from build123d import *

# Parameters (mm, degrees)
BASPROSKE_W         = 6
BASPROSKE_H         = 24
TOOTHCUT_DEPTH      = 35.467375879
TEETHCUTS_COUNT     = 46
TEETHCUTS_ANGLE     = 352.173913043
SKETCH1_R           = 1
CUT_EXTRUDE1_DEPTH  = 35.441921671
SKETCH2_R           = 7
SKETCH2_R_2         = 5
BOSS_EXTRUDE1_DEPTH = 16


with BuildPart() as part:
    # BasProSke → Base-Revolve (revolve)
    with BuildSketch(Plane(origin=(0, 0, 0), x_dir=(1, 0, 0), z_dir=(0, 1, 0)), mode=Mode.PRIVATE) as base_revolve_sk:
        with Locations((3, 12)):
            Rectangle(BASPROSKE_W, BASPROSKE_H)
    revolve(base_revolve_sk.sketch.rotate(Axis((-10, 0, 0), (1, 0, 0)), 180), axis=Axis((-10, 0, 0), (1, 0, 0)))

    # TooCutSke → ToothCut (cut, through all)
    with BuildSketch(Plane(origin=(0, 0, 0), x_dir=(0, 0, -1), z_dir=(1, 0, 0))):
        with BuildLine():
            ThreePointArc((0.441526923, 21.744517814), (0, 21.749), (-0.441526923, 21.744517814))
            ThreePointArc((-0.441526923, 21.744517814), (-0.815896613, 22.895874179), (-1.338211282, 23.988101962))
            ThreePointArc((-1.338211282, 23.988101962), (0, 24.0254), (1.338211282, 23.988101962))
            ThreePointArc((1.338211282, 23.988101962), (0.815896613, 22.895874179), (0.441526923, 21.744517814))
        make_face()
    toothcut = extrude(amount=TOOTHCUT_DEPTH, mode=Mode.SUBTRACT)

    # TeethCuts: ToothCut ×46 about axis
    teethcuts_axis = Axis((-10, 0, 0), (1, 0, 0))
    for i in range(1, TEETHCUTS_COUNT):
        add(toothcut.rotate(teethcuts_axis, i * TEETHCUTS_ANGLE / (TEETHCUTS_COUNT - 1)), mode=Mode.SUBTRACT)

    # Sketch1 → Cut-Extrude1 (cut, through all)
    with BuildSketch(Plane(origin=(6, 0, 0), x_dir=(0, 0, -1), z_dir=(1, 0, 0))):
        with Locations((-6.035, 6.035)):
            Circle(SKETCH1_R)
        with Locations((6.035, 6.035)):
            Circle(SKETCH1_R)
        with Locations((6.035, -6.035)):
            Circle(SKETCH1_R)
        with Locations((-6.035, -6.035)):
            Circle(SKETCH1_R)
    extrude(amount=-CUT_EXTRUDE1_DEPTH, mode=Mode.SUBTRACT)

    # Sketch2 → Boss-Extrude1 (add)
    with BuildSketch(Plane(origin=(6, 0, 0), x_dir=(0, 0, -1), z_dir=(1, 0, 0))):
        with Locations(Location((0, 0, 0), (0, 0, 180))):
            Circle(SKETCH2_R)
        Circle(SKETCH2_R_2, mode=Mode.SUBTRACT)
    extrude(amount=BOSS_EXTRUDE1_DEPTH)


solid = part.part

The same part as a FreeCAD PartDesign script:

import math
import FreeCAD as App
import Part
import Sketcher

V = App.Vector
Q = App.Units.Quantity

doc = App.newDocument("Part")
params = doc.addObject("Spreadsheet::Sheet", "Params")
for row, (alias, value) in enumerate([
    ("sketch1_width", "6 mm"),
    ("sketch1_height", "24 mm"),
    ("revolution_angle", "360 deg"),
    ("sketch2_radius", "9.2 mm"),
    ("sketch3_diameter", "2 mm"),
    ("sketch4_diameter", "14 mm"),
    ("sketch4_diameter2", "10 mm"),
    ("pad1_length", "16 mm"),
], start=1):
    params.set(f"A{row}", alias)
    params.set(f"B{row}", "=" + value)
    params.setAlias(f"B{row}", alias)

body = doc.addObject("PartDesign::Body", "Body")

sketch1 = doc.addObject("Sketcher::SketchObject", "Sketch")
body.addObject(sketch1)
sketch1.AttachmentSupport = (doc.XZ_Plane, [""])
sketch1.MapMode = "FlatFace"
sketch1.addGeometry([
    Part.LineSegment(V(0, -24, 0), V(0, 0, 0)),
    Part.LineSegment(V(0, 0, 0), V(6, 0, 0)),
    Part.LineSegment(V(6, 0, 0), V(6, -24, 0)),
    Part.LineSegment(V(6, -24, 0), V(0, -24, 0)),
], False)
sketch1.addConstraint([
    Sketcher.Constraint("Coincident", 0, 2, 1, 1),
    Sketcher.Constraint("Coincident", 1, 2, 2, 1),
    Sketcher.Constraint("Coincident", 2, 2, 3, 1),
    Sketcher.Constraint("Coincident", 3, 2, 0, 1),
    Sketcher.Constraint("Vertical", 0),
    Sketcher.Constraint("Horizontal", 1),
    Sketcher.Constraint("Vertical", 2),
    Sketcher.Constraint("Horizontal", 3),
    Sketcher.Constraint("Coincident", 0, 2, -1, 1),
    Sketcher.Constraint("DistanceX", 1, 1, 1, 2, Q("6 mm")),
    Sketcher.Constraint("DistanceY", 0, 1, 0, 2, Q("24 mm")),
])
sketch1.setExpression("Constraints[9]", "Params.sketch1_width")
sketch1.setExpression("Constraints[10]", "Params.sketch1_height")
revolution = doc.addObject("PartDesign::Revolution", "Revolution")
body.addObject(revolution)
revolution.Profile = sketch1
revolution.ReferenceAxis = (sketch1, ["H_Axis"])
revolution.setExpression("Angle", "Params.revolution_angle")

sketch2 = doc.addObject("Sketcher::SketchObject", "Sketch001")
body.addObject(sketch2)
sketch2.AttachmentSupport = (doc.YZ_Plane, [""])
sketch2.MapMode = "FlatFace"
sketch2.addGeometry([
    Part.ArcOfCircle(Part.Circle(V(0, 0, 0), V(0, 0, 1), 21.7), math.radians(-1.16), math.radians(1.16)),
    Part.ArcOfCircle(Part.Circle(V(19.5, -9.4, 0), V(0, 0, 1), 9.2), math.radians(60.67), math.radians(75.76)),
    Part.ArcOfCircle(Part.Circle(V(0, 0, 0), V(0, 0, 1), 24), math.radians(-3.19), math.radians(3.19)),
    Part.ArcOfCircle(Part.Circle(V(19.5, 9.4, 0), V(0, 0, 1), 9.2), math.radians(-75.76), math.radians(-60.67)),
], False)
sketch2.addConstraint([
    Sketcher.Constraint("Coincident", 0, 1, 1, 2),
    Sketcher.Constraint("Coincident", 1, 1, 2, 1),
    Sketcher.Constraint("Coincident", 2, 2, 3, 2),
    Sketcher.Constraint("Coincident", 3, 1, 0, 2),
    Sketcher.Constraint("Coincident", 0, 3, -1, 1),
    Sketcher.Constraint("Coincident", 2, 3, -1, 1),
    Sketcher.Constraint("Equal", 1, 3),
    Sketcher.Constraint("Symmetric", 1, 3, 3, 3, -1),
    Sketcher.Constraint("Radius", 1, Q("9.2 mm")),
    Sketcher.Constraint("Radius", 0, Q("21.748999 mm")),
    Sketcher.Constraint("Radius", 2, Q("24.0254 mm")),
    Sketcher.Constraint("DistanceX", -1, 1, 1, 1, Q("23.988102 mm")),
    Sketcher.Constraint("DistanceX", -1, 1, 1, 3, Q("19.48154 mm")),
])
sketch2.setExpression("Constraints[8]", "Params.sketch2_radius")
pocket1 = doc.addObject("PartDesign::Pocket", "Pocket")
body.addObject(pocket1)
pocket1.Profile = sketch2
pocket1.Type = "ThroughAll"
pocket1.Reversed = True
doc.recompute()

polarpattern = doc.addObject("PartDesign::PolarPattern", "PolarPattern")
body.addObject(polarpattern)
polarpattern.Originals = [pocket1]
polarpattern.Axis = (doc.X_Axis, [""])
polarpattern.Angle = 360
polarpattern.Occurrences = 46
body.Tip = polarpattern

sketch3 = doc.addObject("Sketcher::SketchObject", "Sketch002")
body.addObject(sketch3)
sketch3.AttachmentSupport = (doc.YZ_Plane, [""])
sketch3.MapMode = "FlatFace"
sketch3.AttachmentOffset = App.Placement(V(0, 0, 6), App.Rotation())
sketch3.addGeometry([
    Part.Circle(V(6, 6, 0), V(0, 0, 1), 1),
    Part.Circle(V(6, -6, 0), V(0, 0, 1), 1),
    Part.Circle(V(-6, -6, 0), V(0, 0, 1), 1),
    Part.Circle(V(-6, 6, 0), V(0, 0, 1), 1),
], False)
sketch3.addConstraint([
    Sketcher.Constraint("Equal", 0, 1),
    Sketcher.Constraint("Equal", 1, 2),
    Sketcher.Constraint("Equal", 2, 3),
    Sketcher.Constraint("Symmetric", 0, 3, 2, 3, -1, 1),
    Sketcher.Constraint("Symmetric", 1, 3, 3, 3, -1, 1),
    Sketcher.Constraint("Symmetric", 1, 3, 2, 3, -2),
    Sketcher.Constraint("Diameter", 0, Q("2 mm")),
    Sketcher.Constraint("DistanceY", 1, 3, 0, 3, Q("12.07 mm")),
    Sketcher.Constraint("DistanceX", 2, 3, 1, 3, Q("12.07 mm")),
])
sketch3.setExpression("Constraints[6]", "Params.sketch3_diameter")
pocket2 = doc.addObject("PartDesign::Pocket", "Pocket001")
body.addObject(pocket2)
pocket2.Profile = sketch3
pocket2.Type = "ThroughAll"

sketch4 = doc.addObject("Sketcher::SketchObject", "Sketch003")
body.addObject(sketch4)
sketch4.AttachmentSupport = (doc.YZ_Plane, [""])
sketch4.MapMode = "FlatFace"
sketch4.AttachmentOffset = App.Placement(V(0, 0, 6), App.Rotation())
sketch4.addGeometry([
    Part.Circle(V(0, 0, 0), V(0, 0, 1), 7),
    Part.Circle(V(0, 0, 0), V(0, 0, 1), 5),
], False)
sketch4.addConstraint([
    Sketcher.Constraint("Coincident", 0, 3, -1, 1),
    Sketcher.Constraint("Coincident", 1, 3, -1, 1),
    Sketcher.Constraint("Diameter", 0, Q("14 mm")),
    Sketcher.Constraint("Diameter", 1, Q("10 mm")),
])
sketch4.setExpression("Constraints[2]", "Params.sketch4_diameter")
sketch4.setExpression("Constraints[3]", "Params.sketch4_diameter2")
pad1 = doc.addObject("PartDesign::Pad", "Pad")
body.addObject(pad1)
pad1.Profile = sketch4
pad1.setExpression("Length", "Params.pad1_length")

doc.recompute()
